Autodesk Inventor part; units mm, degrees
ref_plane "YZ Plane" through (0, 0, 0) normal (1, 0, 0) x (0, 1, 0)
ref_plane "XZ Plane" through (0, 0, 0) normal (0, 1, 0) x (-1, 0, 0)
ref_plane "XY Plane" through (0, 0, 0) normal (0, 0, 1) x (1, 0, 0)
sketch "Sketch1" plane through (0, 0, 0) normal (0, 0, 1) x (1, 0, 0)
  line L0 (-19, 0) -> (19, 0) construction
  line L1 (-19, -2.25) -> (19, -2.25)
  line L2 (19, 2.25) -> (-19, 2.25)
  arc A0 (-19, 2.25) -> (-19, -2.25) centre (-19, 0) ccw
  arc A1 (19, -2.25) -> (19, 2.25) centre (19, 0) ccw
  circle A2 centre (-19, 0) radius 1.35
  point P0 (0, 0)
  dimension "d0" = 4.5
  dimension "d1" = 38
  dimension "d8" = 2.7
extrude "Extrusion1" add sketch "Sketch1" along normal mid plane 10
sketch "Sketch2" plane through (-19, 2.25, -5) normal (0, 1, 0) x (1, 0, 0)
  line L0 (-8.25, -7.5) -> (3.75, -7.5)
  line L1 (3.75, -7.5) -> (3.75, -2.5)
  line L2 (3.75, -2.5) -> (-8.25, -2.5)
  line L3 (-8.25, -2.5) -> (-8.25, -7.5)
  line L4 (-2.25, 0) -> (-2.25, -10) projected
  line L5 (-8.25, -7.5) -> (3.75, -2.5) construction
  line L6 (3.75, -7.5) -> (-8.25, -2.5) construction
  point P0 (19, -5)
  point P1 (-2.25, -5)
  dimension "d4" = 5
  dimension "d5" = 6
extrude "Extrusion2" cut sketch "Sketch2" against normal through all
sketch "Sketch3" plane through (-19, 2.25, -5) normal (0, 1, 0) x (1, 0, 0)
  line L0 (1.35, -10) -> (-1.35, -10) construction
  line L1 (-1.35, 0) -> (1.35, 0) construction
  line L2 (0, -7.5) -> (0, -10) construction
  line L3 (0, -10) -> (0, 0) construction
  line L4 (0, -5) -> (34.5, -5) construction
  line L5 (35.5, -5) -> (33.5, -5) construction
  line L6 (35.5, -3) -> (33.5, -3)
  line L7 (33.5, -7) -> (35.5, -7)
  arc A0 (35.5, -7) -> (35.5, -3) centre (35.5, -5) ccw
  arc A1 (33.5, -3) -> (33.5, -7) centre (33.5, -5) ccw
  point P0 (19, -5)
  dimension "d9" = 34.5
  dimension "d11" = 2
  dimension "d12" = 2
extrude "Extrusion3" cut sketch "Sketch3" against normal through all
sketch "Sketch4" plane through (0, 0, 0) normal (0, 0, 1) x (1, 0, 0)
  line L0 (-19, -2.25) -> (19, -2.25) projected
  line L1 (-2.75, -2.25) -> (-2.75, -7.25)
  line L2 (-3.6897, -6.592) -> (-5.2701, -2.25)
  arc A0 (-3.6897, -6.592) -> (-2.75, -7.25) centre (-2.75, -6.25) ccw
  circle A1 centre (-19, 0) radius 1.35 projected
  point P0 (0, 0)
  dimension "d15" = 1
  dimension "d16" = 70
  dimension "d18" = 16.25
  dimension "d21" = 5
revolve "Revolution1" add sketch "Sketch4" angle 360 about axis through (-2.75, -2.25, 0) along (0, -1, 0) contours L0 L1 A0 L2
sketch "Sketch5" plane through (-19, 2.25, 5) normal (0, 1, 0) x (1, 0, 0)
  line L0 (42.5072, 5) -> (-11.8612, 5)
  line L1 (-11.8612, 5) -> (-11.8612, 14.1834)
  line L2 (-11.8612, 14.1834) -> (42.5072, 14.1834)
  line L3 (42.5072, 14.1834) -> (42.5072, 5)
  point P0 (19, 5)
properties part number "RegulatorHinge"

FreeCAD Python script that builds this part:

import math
import FreeCAD as App
import Part
import Sketcher
Q = App.Units.Quantity


def add_polygon(sketch, points):
    """Adds a closed chain of lines whose ends are joined by coincident constraints."""
    first, n = sketch.GeometryCount, len(points)
    for a, b in zip(points, points[1:] + points[:1]):
        sketch.addGeometry(Part.LineSegment(App.Vector(*a, 0), App.Vector(*b, 0)), False)
    for i in range(n):
        sketch.addConstraint(Sketcher.Constraint("Coincident", first + i, 2, first + (i + 1) % n, 1))

doc = App.newDocument("Part")
body = doc.addObject("PartDesign::Body", "Body")

# Sketch on XY plane
sketch1 = doc.addObject("Sketcher::SketchObject", "Sketch")
body.addObject(sketch1)
sketch1.AttachmentSupport = (doc.XY_Plane, [""])
sketch1.MapMode = "FlatFace"
sketch1.addGeometry([
    Part.ArcOfCircle(Part.Circle(App.Vector(-19, 0, 0), App.Vector(0, 0, 1), 2.2), math.radians(90), math.radians(270)),  # 0
    Part.LineSegment(App.Vector(-19, -2.2, 0), App.Vector(19, -2.2, 0)),  # 1
    Part.ArcOfCircle(Part.Circle(App.Vector(19, 0, 0), App.Vector(0, 0, 1), 2.2), math.radians(-90), math.radians(90)),  # 2
    Part.LineSegment(App.Vector(19, 2.2, 0), App.Vector(-19, 2.2, 0)),  # 3
    Part.Circle(App.Vector(-19, 0, 0), App.Vector(0, 0, 1), 1.4),  # 4
], False)
sketch1.addConstraint([
    Sketcher.Constraint("Tangent", 0, 2, 1, 1),
    Sketcher.Constraint("Tangent", 1, 2, 2, 1),
    Sketcher.Constraint("Tangent", 2, 2, 3, 1),
    Sketcher.Constraint("Tangent", 3, 2, 0, 1),
    Sketcher.Constraint("Horizontal", 1),
    Sketcher.Constraint("Horizontal", 3),
    Sketcher.Constraint("Coincident", 4, 3, 0, 3),
    Sketcher.Constraint("Symmetric", 0, 3, 2, 3, -1, 1),
    Sketcher.Constraint("Diameter", 4, 2.7),
    Sketcher.Constraint("DistanceX", 1, 1, 1, 2, 38.0),
    Sketcher.Constraint("Radius", 0, 2.25),
])
pad1 = doc.addObject("PartDesign::Pad", "Pad")
body.addObject(pad1)
pad1.Profile = sketch1
pad1.Length = 10
pad1.Midplane = True

# Sketch on XZ plane
sketch2 = doc.addObject("Sketcher::SketchObject", "Sketch001")
body.addObject(sketch2)
sketch2.AttachmentSupport = (doc.XZ_Plane, [""])
sketch2.MapMode = "FlatFace"
sketch2.AttachmentOffset = App.Placement(App.Vector(0, 0, -2.25), App.Rotation())
add_polygon(sketch2, [(-27, -2), (-27, 2), (-15, 2), (-15, -2)])  # lines 0-3
sketch2.addConstraint([
    Sketcher.Constraint("Vertical", 0),
    Sketcher.Constraint("Horizontal", 1),
    Sketcher.Constraint("Vertical", 2),
    Sketcher.Constraint("Horizontal", 3),
    Sketcher.Constraint("DistanceY", 0, 1, 0, 2, 5.0),
    Sketcher.Constraint("DistanceX", 1, 1, 1, 2, 12.0),
    Sketcher.Constraint("DistanceY", -1, 1, 0, 2, 2.5),
    Sketcher.Constraint("DistanceX", 0, 2, -1, 1, 27.25),
])
pocket1 = doc.addObject("PartDesign::Pocket", "Pocket")
body.addObject(pocket1)
pocket1.Profile = sketch2
pocket1.Type = "ThroughAll"
pocket1.Reversed = True

# Sketch on XZ plane
sketch3 = doc.addObject("Sketcher::SketchObject", "Sketch002")
body.addObject(sketch3)
sketch3.AttachmentSupport = (doc.XZ_Plane, [""])
sketch3.MapMode = "FlatFace"
sketch3.AttachmentOffset = App.Placement(App.Vector(0, 0, -2.25), App.Rotation())
sketch3.addGeometry([
    Part.ArcOfCircle(Part.Circle(App.Vector(16.5, 0, 0), App.Vector(0, 0, 1), 2), math.radians(-90), math.radians(90)),
    Part.LineSegment(App.Vector(16.5, -2, 0), App.Vector(14.5, -2, 0)),
    Part.ArcOfCircle(Part.Circle(App.Vector(14.5, 0, 0), App.Vector(0, 0, 1), 2), math.radians(90), math.radians(270)),
    Part.LineSegment(App.Vector(14.5, 2, 0), App.Vector(16.5, 2, 0)),
], False)
sketch3.addConstraint([
    Sketcher.Constraint("Tangent", 0, 1, 1, 1),
    Sketcher.Constraint("Tangent", 1, 2, 2, 2),
    Sketcher.Constraint("Tangent", 2, 1, 3, 1),
    Sketcher.Constraint("Tangent", 3, 2, 0, 2),
    Sketcher.Constraint("Horizontal", 1),
    Sketcher.Constraint("Horizontal", 3),
    Sketcher.Constraint("PointOnObject", 0, 3, -1),
    Sketcher.Constraint("Radius", 0, 2.0),
    Sketcher.Constraint("DistanceX", 1, 2, 1, 1, 2.0),
    Sketcher.Constraint("DistanceX", -1, 1, 0, 3, 16.5),
])
pocket2 = doc.addObject("PartDesign::Pocket", "Pocket001")
body.addObject(pocket2)
pocket2.Profile = sketch3
pocket2.Type = "ThroughAll"
pocket2.Reversed = True

# Sketch on XY plane
sketch4 = doc.addObject("Sketcher::SketchObject", "Sketch003")
body.addObject(sketch4)
sketch4.AttachmentSupport = (doc.XY_Plane, [""])
sketch4.MapMode = "FlatFace"
sketch4.addGeometry([
    Part.LineSegment(App.Vector(-2.8, -2.2, 0), App.Vector(-5.3, -2.2, 0)),
    Part.LineSegment(App.Vector(-5.3, -2.2, 0), App.Vector(-3.7, -6.6, 0)),
    Part.ArcOfCircle(Part.Circle(App.Vector(-2.8, -6.2, 0), App.Vector(0, 0, 1), 1), math.radians(-160), math.radians(-90)),
    Part.LineSegment(App.Vector(-2.8, -7.2, 0), App.Vector(-2.8, -2.2, 0)),
], False)
sketch4.addGeometry(Part.LineSegment(App.Vector(-2.8, -2.2, 0), App.Vector(-2.8, -7.2, 0)), True)  # axis
sketch4.addConstraint([
    Sketcher.Constraint("Coincident", 0, 2, 1, 1),
    Sketcher.Constraint("Tangent", 1, 2, 2, 1),
    Sketcher.Constraint("Coincident", 2, 2, 3, 1),
    Sketcher.Constraint("Coincident", 3, 2, 0, 1),
    Sketcher.Constraint("Horizontal", 0),
    Sketcher.Constraint("Vertical", 3),
    Sketcher.Constraint("Vertical", 4),
    Sketcher.Constraint("Coincident", 4, 1, 3, 2),
    Sketcher.Constraint("Equal", 3, 4),
    Sketcher.Constraint("Radius", 2, 1.0),
    Sketcher.Constraint("DistanceY", 3, 1, 3, 2, 5.0),
    Sketcher.Constraint("Angle", 1, Q("-69.9995 deg")),
    Sketcher.Constraint("DistanceX", 0, 2, 0, 1, 2.52),
    Sketcher.Constraint("DistanceX", 2, 3, -1, 1, 2.75),
    Sketcher.Constraint("DistanceY", 2, 3, -1, 1, 6.25),
])
revolution = doc.addObject("PartDesign::Revolution", "Revolution")
body.addObject(revolution)
revolution.Profile = sketch4
revolution.ReferenceAxis = (sketch4, ["Axis0"])
revolution.Angle = 360

doc.recompute()
